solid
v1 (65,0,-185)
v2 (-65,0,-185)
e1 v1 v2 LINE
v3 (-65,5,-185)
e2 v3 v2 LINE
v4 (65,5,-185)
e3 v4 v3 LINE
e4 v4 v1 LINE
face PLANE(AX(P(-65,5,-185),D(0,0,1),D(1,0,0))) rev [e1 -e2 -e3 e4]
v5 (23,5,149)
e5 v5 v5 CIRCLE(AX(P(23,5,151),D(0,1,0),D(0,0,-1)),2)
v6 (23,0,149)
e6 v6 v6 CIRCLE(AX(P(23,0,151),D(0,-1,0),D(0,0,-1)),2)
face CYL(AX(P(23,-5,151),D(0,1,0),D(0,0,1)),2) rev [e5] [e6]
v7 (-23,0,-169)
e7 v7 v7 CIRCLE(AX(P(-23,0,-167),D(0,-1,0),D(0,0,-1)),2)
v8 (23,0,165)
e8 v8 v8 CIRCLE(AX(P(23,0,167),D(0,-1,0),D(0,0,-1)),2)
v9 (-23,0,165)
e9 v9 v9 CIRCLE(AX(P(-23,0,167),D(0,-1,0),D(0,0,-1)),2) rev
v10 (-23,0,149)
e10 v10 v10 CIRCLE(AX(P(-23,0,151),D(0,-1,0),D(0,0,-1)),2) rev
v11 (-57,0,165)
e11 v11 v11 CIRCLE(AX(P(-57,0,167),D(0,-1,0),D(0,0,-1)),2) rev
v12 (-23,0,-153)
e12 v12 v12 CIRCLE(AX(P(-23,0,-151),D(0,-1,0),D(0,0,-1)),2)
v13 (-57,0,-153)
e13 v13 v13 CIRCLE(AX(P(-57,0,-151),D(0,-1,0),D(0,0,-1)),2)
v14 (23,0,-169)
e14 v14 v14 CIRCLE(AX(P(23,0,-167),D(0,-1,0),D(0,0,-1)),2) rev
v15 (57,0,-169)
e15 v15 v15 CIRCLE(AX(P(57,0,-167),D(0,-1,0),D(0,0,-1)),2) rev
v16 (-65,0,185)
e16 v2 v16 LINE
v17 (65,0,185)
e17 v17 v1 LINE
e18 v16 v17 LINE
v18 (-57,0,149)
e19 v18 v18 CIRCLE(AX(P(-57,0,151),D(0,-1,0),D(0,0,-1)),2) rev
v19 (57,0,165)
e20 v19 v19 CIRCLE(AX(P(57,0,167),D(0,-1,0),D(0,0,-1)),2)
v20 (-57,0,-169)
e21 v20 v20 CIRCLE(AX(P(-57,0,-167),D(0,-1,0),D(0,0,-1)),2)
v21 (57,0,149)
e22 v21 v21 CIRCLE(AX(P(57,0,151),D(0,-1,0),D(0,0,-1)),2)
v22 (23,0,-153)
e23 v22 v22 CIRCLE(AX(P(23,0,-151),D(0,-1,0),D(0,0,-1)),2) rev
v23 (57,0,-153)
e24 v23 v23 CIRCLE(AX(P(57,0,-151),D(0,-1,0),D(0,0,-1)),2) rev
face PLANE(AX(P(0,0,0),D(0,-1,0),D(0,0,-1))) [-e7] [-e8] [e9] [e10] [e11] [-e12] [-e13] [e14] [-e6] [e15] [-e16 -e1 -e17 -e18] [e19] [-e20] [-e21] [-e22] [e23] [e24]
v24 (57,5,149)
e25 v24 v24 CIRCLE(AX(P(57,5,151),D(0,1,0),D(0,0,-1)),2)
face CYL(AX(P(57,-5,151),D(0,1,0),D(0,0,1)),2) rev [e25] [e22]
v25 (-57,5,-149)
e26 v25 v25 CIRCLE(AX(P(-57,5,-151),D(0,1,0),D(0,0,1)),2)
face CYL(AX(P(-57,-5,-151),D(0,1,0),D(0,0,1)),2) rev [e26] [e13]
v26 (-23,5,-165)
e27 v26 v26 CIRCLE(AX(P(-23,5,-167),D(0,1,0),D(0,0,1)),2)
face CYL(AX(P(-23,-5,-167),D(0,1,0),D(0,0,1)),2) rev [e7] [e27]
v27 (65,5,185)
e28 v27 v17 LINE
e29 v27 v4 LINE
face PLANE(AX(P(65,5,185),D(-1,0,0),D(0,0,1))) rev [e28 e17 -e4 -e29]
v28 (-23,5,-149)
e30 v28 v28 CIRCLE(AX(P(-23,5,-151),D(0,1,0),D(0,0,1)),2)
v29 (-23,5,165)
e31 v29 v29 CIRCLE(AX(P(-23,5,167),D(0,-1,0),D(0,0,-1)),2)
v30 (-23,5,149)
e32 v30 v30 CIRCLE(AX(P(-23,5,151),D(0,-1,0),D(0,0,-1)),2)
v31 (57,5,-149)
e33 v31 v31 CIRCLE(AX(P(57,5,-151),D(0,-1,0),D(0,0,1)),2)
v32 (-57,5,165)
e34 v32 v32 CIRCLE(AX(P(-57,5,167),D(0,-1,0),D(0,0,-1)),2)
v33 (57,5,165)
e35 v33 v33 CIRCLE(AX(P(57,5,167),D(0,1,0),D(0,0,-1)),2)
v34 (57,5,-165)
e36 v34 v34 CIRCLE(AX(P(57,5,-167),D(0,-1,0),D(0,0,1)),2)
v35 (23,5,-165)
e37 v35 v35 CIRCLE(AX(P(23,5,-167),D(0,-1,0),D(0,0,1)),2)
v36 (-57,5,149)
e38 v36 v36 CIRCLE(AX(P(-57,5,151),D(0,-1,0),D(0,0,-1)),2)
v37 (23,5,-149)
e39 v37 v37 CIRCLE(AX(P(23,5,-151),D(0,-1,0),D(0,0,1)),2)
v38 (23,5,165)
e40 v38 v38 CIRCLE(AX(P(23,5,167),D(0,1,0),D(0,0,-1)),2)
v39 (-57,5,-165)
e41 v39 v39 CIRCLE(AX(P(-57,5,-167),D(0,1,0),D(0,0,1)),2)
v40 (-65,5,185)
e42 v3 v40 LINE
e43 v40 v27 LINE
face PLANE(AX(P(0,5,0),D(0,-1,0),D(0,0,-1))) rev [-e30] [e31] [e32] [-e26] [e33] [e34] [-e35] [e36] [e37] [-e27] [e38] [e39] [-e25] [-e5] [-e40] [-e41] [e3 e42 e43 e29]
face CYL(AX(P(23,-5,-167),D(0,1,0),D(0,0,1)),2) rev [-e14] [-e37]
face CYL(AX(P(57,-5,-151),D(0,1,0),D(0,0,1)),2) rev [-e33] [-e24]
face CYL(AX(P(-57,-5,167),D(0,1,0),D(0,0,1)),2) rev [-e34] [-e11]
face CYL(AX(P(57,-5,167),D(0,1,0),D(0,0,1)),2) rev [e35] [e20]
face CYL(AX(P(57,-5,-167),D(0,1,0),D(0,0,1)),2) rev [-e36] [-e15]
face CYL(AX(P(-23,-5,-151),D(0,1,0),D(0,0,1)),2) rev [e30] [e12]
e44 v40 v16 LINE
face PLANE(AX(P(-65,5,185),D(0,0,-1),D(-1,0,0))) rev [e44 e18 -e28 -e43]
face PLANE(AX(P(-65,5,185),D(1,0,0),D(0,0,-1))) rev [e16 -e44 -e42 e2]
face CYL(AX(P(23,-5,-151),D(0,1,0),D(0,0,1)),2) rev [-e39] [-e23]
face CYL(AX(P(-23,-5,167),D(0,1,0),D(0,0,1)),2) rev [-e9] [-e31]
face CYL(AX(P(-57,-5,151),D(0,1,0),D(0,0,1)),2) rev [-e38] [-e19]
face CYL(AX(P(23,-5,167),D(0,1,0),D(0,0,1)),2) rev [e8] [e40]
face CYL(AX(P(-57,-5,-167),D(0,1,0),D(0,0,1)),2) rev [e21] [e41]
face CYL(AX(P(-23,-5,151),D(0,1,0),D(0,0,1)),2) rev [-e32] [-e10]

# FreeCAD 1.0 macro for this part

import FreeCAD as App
import Part
import Sketcher
from FreeCAD import Vector


def add_polygon(sketch, points):
    """Adds a closed chain of lines whose ends are joined by coincident constraints."""
    first, n = sketch.GeometryCount, len(points)
    for a, b in zip(points, points[1:] + points[:1]):
        sketch.addGeometry(Part.LineSegment(App.Vector(*a, 0), App.Vector(*b, 0)), False)
    for i in range(n):
        sketch.addConstraint(Sketcher.Constraint("Coincident", first + i, 2, first + (i + 1) % n, 1))

doc = App.newDocument("Part")
body = doc.addObject("PartDesign::Body", "Body")

# Sketch on XZ plane
sketch1 = body.newObject("Sketcher::SketchObject", "Sketch")
sketch1.AttachmentSupport = (doc.getObject("XZ_Plane"), [""])
sketch1.MapMode = "FlatFace"
add_polygon(sketch1, [(-65, -185), (-65, 185), (65, 185), (65, -185)])  # lines 0-3
sketch1.addConstraint([
    Sketcher.Constraint("Vertical", 0),
    Sketcher.Constraint("Horizontal", 1),
    Sketcher.Constraint("Vertical", 2),
    Sketcher.Constraint("Horizontal", 3),
    Sketcher.Constraint("Symmetric", 0, 2, 2, 2, -1, 1),
    Sketcher.Constraint("DistanceX", 1, 1, 1, 2, 130.0),
    Sketcher.Constraint("DistanceY", 0, 1, 0, 2, 370.0),
])
pad1 = body.newObject("PartDesign::Pad", "Pad")
pad1.Profile = sketch1
pad1.Length = 5
pad1.Reversed = True

# Sketch on XZ plane
sketch2 = body.newObject("Sketcher::SketchObject", "Sketch001")
sketch2.AttachmentSupport = (doc.getObject("XZ_Plane"), [""])
sketch2.MapMode = "FlatFace"
sketch2.AttachmentOffset = App.Placement(Vector(0, 0, -5), App.Rotation())
sketch2.addGeometry([
    Part.Circle(Vector(-57, -167, 0), Vector(0, 0, 1), 2),
    Part.Circle(Vector(-57, -151, 0), Vector(0, 0, 1), 2),
    Part.Circle(Vector(-23, -167, 0), Vector(0, 0, 1), 2),
    Part.Circle(Vector(-23, -151, 0), Vector(0, 0, 1), 2),
], False)
sketch2.addConstraint([
    Sketcher.Constraint("Equal", 0, 1),
    Sketcher.Constraint("Equal", 1, 2),
    Sketcher.Constraint("Equal", 2, 3),
    Sketcher.Constraint("Horizontal", 0, 3, 2, 3),
    Sketcher.Constraint("Horizontal", 1, 3, 3, 3),
    Sketcher.Constraint("Vertical", 0, 3, 1, 3),
    Sketcher.Constraint("Vertical", 2, 3, 3, 3),
    Sketcher.Constraint("Diameter", 0, 4.0),
    Sketcher.Constraint("DistanceX", 0, 3, -1, 1, 57.0),
    Sketcher.Constraint("DistanceY", 0, 3, -1, 1, 167.0),
    Sketcher.Constraint("DistanceY", 1, 3, -1, 1, 151.0),
    Sketcher.Constraint("DistanceX", 2, 3, -1, 1, 23.0),
])
pocket1 = body.newObject("PartDesign::Pocket", "Pocket")
pocket1.Profile = sketch2
pocket1.Length = 10
pocket1.Reversed = True
doc.recompute()

mirrored = body.newObject("PartDesign::Mirrored", "Mirrored")
mirrored.Originals = [pocket1]
mirrored.MirrorPlane = (doc.getObject("XY_Plane"), [""])
body.Tip = mirrored
doc.recompute()

mirrored2 = body.newObject("PartDesign::Mirrored", "Mirrored001")
mirrored2.Originals = [pocket1]
mirrored2.MirrorPlane = (doc.getObject("YZ_Plane"), [""])
body.Tip = mirrored2

# Sketch on XZ plane
sketch3 = body.newObject("Sketcher::SketchObject", "Sketch002")
sketch3.AttachmentSupport = (doc.getObject("XZ_Plane"), [""])
sketch3.MapMode = "FlatFace"
sketch3.AttachmentOffset = App.Placement(Vector(0, 0, -5), App.Rotation())
sketch3.addGeometry([
    Part.Circle(Vector(57, 167, 0), Vector(0, 0, 1), 2),
    Part.Circle(Vector(57, 151, 0), Vector(0, 0, 1), 2),
    Part.Circle(Vector(23, 167, 0), Vector(0, 0, 1), 2),
    Part.Circle(Vector(23, 151, 0), Vector(0, 0, 1), 2),
], False)
sketch3.addConstraint([
    Sketcher.Constraint("Equal", 0, 1),
    Sketcher.Constraint("Equal", 1, 2),
    Sketcher.Constraint("Equal", 2, 3),
    Sketcher.Constraint("Horizontal", 0, 3, 2, 3),
    Sketcher.Constraint("Horizontal", 1, 3, 3, 3),
    Sketcher.Constraint("Vertical", 0, 3, 1, 3),
    Sketcher.Constraint("Vertical", 2, 3, 3, 3),
    Sketcher.Constraint("Diameter", 0, 4.0),
    Sketcher.Constraint("DistanceX", -1, 1, 0, 3, 57.0),
    Sketcher.Constraint("DistanceY", -1, 1, 0, 3, 167.0),
    Sketcher.Constraint("DistanceY", -1, 1, 1, 3, 151.0),
    Sketcher.Constraint("DistanceX", -1, 1, 2, 3, 23.0),
])
pocket2 = body.newObject("PartDesign::Pocket", "Pocket001")
pocket2.Profile = sketch3
pocket2.Length = 10
pocket2.Reversed = True

doc.recompute()
